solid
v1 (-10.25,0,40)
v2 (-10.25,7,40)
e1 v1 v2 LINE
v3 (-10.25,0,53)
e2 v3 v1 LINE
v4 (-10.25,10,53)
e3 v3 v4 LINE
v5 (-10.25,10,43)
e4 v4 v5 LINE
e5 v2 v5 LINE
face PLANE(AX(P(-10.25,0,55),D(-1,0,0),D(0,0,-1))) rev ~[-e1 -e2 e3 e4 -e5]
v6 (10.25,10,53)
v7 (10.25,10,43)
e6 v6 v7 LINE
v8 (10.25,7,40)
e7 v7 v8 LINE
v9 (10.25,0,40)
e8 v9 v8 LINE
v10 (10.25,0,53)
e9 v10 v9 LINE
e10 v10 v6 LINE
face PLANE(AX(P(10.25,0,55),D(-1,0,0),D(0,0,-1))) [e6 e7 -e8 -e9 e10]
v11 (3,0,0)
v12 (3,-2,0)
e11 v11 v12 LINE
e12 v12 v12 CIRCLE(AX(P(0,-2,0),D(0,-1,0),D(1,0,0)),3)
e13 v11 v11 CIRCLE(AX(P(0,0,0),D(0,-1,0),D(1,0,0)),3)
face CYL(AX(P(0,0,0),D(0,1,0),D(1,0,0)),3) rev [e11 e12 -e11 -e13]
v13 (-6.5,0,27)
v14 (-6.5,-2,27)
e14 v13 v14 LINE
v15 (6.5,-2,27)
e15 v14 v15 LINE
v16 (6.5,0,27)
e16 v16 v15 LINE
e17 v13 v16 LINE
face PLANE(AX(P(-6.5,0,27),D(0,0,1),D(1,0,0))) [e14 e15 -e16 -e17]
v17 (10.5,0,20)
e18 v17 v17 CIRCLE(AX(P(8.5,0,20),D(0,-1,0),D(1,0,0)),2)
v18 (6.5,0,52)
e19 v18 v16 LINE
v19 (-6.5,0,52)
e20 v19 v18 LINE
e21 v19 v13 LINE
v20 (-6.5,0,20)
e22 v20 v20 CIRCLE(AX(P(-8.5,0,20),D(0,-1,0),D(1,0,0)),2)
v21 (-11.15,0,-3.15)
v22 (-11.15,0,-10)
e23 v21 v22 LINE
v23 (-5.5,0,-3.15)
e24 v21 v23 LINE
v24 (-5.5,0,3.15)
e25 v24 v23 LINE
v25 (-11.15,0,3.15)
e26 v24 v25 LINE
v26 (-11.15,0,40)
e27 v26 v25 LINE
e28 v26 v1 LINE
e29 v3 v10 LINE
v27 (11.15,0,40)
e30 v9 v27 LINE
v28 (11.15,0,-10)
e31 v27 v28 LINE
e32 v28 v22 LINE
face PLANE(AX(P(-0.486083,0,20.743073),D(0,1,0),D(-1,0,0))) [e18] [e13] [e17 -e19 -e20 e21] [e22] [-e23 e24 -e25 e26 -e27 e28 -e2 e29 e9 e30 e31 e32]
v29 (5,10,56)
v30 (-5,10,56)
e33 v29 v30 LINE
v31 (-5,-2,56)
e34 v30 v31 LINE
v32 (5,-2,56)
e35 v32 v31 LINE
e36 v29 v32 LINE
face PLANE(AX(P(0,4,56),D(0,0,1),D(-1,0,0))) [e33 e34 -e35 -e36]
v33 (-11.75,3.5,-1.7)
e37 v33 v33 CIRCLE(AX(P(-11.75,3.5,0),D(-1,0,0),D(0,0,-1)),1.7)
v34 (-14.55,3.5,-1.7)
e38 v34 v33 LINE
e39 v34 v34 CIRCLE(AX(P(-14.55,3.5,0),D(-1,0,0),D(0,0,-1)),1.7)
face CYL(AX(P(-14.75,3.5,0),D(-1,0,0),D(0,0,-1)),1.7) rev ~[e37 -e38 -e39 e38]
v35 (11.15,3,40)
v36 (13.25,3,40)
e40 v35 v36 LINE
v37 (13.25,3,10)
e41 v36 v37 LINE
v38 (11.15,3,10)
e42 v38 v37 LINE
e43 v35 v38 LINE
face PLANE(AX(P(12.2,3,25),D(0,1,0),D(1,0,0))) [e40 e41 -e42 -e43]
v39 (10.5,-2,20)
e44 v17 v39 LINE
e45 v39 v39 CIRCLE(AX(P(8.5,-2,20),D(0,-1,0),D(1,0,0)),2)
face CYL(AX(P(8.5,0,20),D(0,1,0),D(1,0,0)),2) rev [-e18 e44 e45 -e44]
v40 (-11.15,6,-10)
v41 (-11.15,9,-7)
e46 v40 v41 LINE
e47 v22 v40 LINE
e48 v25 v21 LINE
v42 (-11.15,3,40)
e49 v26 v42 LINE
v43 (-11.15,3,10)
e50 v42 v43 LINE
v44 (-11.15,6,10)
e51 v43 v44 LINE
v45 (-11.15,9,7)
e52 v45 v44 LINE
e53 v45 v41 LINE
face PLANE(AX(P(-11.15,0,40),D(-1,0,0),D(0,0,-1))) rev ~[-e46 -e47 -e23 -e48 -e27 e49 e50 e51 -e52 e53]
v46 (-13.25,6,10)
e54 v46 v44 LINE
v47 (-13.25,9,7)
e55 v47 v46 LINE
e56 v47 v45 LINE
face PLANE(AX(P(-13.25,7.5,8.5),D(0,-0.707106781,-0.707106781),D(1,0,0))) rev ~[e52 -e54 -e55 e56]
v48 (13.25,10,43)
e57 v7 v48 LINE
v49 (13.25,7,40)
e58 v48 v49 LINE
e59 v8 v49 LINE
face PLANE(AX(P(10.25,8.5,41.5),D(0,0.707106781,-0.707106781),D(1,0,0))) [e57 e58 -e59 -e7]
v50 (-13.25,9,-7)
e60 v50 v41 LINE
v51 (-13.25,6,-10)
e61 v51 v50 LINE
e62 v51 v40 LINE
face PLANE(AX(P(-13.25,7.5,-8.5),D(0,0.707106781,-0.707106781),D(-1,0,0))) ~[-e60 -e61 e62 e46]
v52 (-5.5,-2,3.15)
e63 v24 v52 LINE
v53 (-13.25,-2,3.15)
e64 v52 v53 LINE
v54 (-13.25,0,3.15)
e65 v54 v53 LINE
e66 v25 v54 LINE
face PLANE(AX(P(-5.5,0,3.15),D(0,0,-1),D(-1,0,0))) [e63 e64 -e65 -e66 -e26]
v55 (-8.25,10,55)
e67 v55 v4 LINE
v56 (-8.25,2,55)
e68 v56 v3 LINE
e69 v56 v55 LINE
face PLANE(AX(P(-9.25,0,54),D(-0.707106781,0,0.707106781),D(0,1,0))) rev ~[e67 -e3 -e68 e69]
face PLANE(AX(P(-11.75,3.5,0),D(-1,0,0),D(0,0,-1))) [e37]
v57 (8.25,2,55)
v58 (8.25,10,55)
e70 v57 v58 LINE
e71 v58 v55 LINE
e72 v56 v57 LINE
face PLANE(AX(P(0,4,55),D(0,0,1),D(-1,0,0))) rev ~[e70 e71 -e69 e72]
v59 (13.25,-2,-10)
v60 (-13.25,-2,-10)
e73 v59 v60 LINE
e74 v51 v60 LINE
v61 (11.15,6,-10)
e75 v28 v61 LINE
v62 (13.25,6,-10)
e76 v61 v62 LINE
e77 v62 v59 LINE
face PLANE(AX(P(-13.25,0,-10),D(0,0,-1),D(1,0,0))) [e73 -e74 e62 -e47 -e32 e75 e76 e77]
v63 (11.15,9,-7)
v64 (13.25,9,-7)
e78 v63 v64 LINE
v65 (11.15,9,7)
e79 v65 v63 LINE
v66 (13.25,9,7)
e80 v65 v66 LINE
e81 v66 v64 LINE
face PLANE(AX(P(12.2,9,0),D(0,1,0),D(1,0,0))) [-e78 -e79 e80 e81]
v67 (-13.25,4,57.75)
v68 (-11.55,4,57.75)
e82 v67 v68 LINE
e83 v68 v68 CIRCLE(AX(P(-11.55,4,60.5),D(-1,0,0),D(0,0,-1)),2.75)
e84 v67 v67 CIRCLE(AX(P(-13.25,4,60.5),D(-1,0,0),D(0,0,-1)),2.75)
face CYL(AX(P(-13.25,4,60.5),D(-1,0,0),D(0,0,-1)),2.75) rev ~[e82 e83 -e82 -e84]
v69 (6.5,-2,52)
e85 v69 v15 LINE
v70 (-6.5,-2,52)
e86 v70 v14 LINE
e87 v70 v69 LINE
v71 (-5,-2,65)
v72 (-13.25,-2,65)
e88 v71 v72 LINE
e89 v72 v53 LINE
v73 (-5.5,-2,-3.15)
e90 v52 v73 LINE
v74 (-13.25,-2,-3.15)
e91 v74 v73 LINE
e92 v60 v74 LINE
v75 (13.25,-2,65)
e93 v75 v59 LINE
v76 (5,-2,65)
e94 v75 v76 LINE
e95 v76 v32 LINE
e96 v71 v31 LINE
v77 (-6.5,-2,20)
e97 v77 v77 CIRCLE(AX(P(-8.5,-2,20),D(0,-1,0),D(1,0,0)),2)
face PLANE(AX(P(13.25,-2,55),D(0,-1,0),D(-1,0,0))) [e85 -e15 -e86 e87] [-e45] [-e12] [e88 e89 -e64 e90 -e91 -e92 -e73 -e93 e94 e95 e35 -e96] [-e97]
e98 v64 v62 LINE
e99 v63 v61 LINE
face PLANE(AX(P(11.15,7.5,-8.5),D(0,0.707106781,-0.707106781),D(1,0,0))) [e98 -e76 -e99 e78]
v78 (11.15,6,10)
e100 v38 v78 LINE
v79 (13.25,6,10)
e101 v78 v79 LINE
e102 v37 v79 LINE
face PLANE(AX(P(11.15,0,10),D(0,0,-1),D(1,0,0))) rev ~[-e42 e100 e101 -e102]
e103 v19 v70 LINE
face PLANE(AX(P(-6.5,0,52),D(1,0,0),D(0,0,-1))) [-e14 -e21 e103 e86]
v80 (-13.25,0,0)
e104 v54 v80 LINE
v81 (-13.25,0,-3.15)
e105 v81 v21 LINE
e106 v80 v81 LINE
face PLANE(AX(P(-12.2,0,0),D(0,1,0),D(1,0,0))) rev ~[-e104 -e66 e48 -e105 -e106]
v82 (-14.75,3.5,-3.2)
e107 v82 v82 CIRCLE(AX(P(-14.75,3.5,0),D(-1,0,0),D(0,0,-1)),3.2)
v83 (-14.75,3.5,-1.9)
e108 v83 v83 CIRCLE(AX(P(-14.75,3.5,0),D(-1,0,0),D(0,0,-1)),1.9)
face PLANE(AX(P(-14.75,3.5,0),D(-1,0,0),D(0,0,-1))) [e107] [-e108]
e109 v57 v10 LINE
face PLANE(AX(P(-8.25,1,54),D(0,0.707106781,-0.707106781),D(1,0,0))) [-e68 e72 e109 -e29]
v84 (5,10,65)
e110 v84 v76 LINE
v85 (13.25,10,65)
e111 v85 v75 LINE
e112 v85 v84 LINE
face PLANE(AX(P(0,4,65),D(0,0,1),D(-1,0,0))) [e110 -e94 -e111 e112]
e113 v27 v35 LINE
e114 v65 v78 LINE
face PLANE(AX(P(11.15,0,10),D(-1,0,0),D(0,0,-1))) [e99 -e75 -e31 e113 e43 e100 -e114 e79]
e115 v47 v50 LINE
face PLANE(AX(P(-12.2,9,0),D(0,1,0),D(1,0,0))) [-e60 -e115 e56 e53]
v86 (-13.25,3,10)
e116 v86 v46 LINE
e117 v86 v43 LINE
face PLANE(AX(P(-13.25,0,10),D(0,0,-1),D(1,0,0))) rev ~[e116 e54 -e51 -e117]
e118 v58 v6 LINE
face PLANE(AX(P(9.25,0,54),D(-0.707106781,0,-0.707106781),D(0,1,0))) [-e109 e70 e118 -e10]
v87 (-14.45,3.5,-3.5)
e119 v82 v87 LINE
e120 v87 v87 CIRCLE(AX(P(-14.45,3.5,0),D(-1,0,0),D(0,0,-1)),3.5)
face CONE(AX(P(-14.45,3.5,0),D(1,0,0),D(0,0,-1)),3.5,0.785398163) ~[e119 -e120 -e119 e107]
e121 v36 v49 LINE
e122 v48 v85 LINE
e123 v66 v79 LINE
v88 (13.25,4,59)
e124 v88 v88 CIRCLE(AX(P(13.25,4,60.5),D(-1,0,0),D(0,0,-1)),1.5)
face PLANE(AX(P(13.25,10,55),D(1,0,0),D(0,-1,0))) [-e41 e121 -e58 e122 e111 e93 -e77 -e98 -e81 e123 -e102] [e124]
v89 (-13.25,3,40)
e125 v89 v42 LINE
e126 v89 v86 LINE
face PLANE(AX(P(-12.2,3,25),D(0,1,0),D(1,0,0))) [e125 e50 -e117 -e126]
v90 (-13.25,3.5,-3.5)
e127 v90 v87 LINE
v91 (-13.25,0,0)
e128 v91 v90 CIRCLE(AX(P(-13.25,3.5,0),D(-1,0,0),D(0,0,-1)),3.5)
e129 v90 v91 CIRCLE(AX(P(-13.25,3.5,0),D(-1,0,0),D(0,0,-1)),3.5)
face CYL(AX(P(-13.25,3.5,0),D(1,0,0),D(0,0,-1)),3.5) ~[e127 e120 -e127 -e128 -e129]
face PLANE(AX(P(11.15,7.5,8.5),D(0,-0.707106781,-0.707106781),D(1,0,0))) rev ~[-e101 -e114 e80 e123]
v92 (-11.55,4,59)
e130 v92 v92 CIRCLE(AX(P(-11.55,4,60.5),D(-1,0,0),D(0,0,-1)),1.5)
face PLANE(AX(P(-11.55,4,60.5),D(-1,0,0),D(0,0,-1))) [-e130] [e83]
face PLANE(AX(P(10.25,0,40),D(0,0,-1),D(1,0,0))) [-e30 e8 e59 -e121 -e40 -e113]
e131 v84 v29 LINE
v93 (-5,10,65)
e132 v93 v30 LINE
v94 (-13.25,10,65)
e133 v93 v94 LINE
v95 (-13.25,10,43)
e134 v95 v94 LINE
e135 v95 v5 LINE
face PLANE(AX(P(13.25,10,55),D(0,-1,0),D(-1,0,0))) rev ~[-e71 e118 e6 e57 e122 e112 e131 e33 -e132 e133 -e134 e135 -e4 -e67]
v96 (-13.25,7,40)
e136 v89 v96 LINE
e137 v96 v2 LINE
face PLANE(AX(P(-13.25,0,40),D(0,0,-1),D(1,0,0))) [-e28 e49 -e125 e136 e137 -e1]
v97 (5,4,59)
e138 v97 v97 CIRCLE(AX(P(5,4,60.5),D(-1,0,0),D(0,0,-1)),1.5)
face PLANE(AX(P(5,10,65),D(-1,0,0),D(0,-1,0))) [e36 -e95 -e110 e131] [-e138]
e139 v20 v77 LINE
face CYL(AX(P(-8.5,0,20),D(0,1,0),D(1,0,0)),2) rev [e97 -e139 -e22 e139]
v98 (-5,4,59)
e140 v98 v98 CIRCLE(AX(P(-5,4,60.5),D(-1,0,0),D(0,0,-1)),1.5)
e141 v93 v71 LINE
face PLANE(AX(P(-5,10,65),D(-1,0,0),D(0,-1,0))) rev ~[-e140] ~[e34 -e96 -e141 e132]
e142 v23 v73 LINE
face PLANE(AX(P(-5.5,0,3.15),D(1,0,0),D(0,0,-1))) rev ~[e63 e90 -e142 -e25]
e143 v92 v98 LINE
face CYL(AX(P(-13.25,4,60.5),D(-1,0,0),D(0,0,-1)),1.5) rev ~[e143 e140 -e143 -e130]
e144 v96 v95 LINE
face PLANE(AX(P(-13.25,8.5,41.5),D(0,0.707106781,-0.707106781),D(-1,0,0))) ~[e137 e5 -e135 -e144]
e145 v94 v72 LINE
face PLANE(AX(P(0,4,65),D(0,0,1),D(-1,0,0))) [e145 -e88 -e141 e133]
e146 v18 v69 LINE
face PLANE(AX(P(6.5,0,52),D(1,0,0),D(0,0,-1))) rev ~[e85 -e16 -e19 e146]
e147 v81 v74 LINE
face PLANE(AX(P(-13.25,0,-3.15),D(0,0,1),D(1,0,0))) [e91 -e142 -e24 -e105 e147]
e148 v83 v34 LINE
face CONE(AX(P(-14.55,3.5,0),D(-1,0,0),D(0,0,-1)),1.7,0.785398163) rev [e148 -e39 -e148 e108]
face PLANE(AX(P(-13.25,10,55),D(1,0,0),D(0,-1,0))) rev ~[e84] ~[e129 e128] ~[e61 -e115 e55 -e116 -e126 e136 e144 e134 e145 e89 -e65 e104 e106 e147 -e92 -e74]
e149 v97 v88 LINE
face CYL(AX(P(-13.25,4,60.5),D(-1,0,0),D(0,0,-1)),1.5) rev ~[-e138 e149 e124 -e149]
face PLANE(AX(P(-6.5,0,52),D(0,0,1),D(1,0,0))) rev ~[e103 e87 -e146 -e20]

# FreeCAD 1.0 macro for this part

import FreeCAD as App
import Part
import Sketcher
from FreeCAD import Vector


def edges_at(feature, points):
    """Names of the edges that pass closest to the given points."""
    edges = feature.Shape.Edges
    near = lambda p: min(range(len(edges)), key=lambda i: edges[i].distToShape(Part.Vertex(*p))[0])
    return sorted({f"Edge{near(p) + 1}" for p in points})


def add_polygon(sketch, points):
    """Adds a closed chain of lines whose ends are joined by coincident constraints."""
    first, n = sketch.GeometryCount, len(points)
    for a, b in zip(points, points[1:] + points[:1]):
        sketch.addGeometry(Part.LineSegment(App.Vector(*a, 0), App.Vector(*b, 0)), False)
    for i in range(n):
        sketch.addConstraint(Sketcher.Constraint("Coincident", first + i, 2, first + (i + 1) % n, 1))

doc = App.newDocument("Part")
body = doc.addObject("PartDesign::Body", "Body")

# Sketch on XZ plane
sketch1 = body.newObject("Sketcher::SketchObject", "Sketch")
sketch1.AttachmentSupport = (doc.getObject("XZ_Plane"), [""])
sketch1.MapMode = "FlatFace"
add_polygon(sketch1, [(13.2, 55), (-13.2, 55), (-13.2, 3.1), (-5.5, 3.1), (-5.5, -3.1), (-13.2, -3.1), (-13.2, -10), (13.2, -10)])  # lines 0-7
sketch1.addGeometry(Part.Circle(Vector(0, 0, 0), Vector(0, 0, 1), 3), False)  # 8
sketch1.addGeometry(Part.Circle(Vector(8.5, 20, 0), Vector(0, 0, 1), 2), False)  # 9
sketch1.addGeometry(Part.Circle(Vector(-8.5, 20, 0), Vector(0, 0, 1), 2), False)  # 10
sketch1.addConstraint([
    Sketcher.Constraint("Horizontal", 0),
    Sketcher.Constraint("Vertical", 1),
    Sketcher.Constraint("Horizontal", 2),
    Sketcher.Constraint("Vertical", 3),
    Sketcher.Constraint("Horizontal", 4),
    Sketcher.Constraint("Vertical", 5),
    Sketcher.Constraint("Horizontal", 6),
    Sketcher.Constraint("Vertical", 7),
    Sketcher.Constraint("Coincident", 8, 3, -1, 1),
    Sketcher.Constraint("Equal", 9, 10),
    Sketcher.Constraint("Symmetric", 9, 3, 10, 3, -2),
    Sketcher.Constraint("Symmetric", 1, 2, 4, 2, -1),
    Sketcher.Constraint("Diameter", 8, 6.0),
    Sketcher.Constraint("Diameter", 9, 4.0),
    Sketcher.Constraint("DistanceY", 7, 1, 7, 2, 65.0),
    Sketcher.Constraint("DistanceX", 0, 2, 0, 1, 26.5),
    Sketcher.Constraint("DistanceY", 3, 2, 3, 1, 6.3),
    Sketcher.Constraint("DistanceY", -1, 1, 9, 3, 20.0),
    Sketcher.Constraint("DistanceY", -1, 1, 0, 2, 55.0),
    Sketcher.Constraint("DistanceX", 10, 3, 9, 3, 17.0),
    Sketcher.Constraint("DistanceX", 10, 3, 2, 2, 3.0),
    Sketcher.Constraint("DistanceX", 2, 1, 2, 2, 7.75),
])
pad1 = body.newObject("PartDesign::Pad", "Pad")
pad1.Profile = sketch1
pad1.Length = 2

# Sketch on XZ plane
sketch2 = body.newObject("Sketcher::SketchObject", "Sketch001")
sketch2.AttachmentSupport = (doc.getObject("XZ_Plane"), [""])
sketch2.MapMode = "FlatFace"
add_polygon(sketch2, [(-13.2, -10), (-13.2, 10), (-11.2, 10), (-11.2, -10)])  # lines 0-3
add_polygon(sketch2, [(11.2, -10), (11.2, 10), (13.2, 10), (13.2, -10)])  # lines 4-7
sketch2.addConstraint([
    Sketcher.Constraint("Vertical", 0),
    Sketcher.Constraint("Horizontal", 1),
    Sketcher.Constraint("Vertical", 2),
    Sketcher.Constraint("Horizontal", 3),
    Sketcher.Constraint("Vertical", 4),
    Sketcher.Constraint("Horizontal", 5),
    Sketcher.Constraint("Vertical", 6),
    Sketcher.Constraint("Horizontal", 7),
    Sketcher.Constraint("Symmetric", 2, 2, 4, 2, -1, 1),
    Sketcher.Constraint("Symmetric", 0, 2, 6, 2, -1, 1),
    Sketcher.Constraint("Horizontal", 1, 2, 4, 2),
    Sketcher.Constraint("DistanceY", 0, 1, 0, 2, 20.0),
    Sketcher.Constraint("DistanceX", 1, 1, 1, 2, 2.1),
    Sketcher.Constraint("DistanceX", 1, 2, 4, 2, 22.3),
])
pad2 = body.newObject("PartDesign::Pad", "Pad001")
pad2.Profile = sketch2
pad2.Length = 9
pad2.Reversed = True
doc.recompute()

chamfer = body.newObject("PartDesign::Chamfer", "Chamfer")
chamfer.Base = (pad2, edges_at(pad2, [
    (-12.2, 9, -10),
    (12.2, 9, -10),
    (12.2, 9, 10),
    (-12.2, 9, 10),
]))
chamfer.Size = 3

# Sketch on XZ plane
sketch3 = body.newObject("Sketcher::SketchObject", "Sketch002")
sketch3.AttachmentSupport = (doc.getObject("XZ_Plane"), [""])
sketch3.MapMode = "FlatFace"
add_polygon(sketch3, [(-6, 27), (-6, 52), (6, 52), (6, 27)])  # lines 0-3
sketch3.addConstraint([
    Sketcher.Constraint("Vertical", 0),
    Sketcher.Constraint("Horizontal", 1),
    Sketcher.Constraint("Vertical", 2),
    Sketcher.Constraint("Horizontal", 3),
    Sketcher.Constraint("DistanceX", 1, 1, 1, 2, 13.0),
    Sketcher.Constraint("DistanceY", 0, 1, 0, 2, 25.0),
    Sketcher.Constraint("DistanceY", -1, 1, 0, 2, 52.0),
    Sketcher.Constraint("DistanceX", 0, 2, -1, 1, 6.5),
])
pocket1 = body.newObject("PartDesign::Pocket", "Pocket")
pocket1.Profile = sketch3
pocket1.Length = 2.5
pocket1.Reversed = True

# Sketch on YZ plane
sketch4 = body.newObject("Sketcher::SketchObject", "Sketch003")
sketch4.AttachmentSupport = (doc.getObject("YZ_Plane"), [""])
sketch4.MapMode = "FlatFace"
sketch4.AttachmentOffset = App.Placement(Vector(0, 0, -13.25), App.Rotation())
sketch4.addGeometry(Part.Circle(Vector(3.5, 0, 0), Vector(0, 0, 1), 3.5), False)
sketch4.addConstraint([
    Sketcher.Constraint("PointOnObject", 0, 3, -1),
    Sketcher.Constraint("Diameter", 0, 7.0),
    Sketcher.Constraint("DistanceX", -1, 1, 0, 3, 3.5),
])
pad3 = body.newObject("PartDesign::Pad", "Pad002")
pad3.Profile = sketch4
pad3.Length = 1.5
pad3.Reversed = True

# Sketch on YZ plane
sketch5 = body.newObject("Sketcher::SketchObject", "Sketch004")
sketch5.AttachmentSupport = (doc.getObject("YZ_Plane"), [""])
sketch5.MapMode = "FlatFace"
sketch5.AttachmentOffset = App.Placement(Vector(0, 0, -14.75), App.Rotation())
sketch5.addGeometry(Part.Circle(Vector(3.5, 0, 0), Vector(0, 0, 1), 1.7), False)
sketch5.addConstraint([
    Sketcher.Constraint("PointOnObject", 0, 3, -1),
    Sketcher.Constraint("Diameter", 0, 3.4),
    Sketcher.Constraint("DistanceX", -1, 1, 0, 3, 3.5),
])
pocket2 = body.newObject("PartDesign::Pocket", "Pocket001")
pocket2.Profile = sketch5
pocket2.Length = 3
pocket2.Reversed = True
doc.recompute()

chamfer2 = body.newObject("PartDesign::Chamfer", "Chamfer001")
chamfer2.Base = (pocket2, edges_at(pocket2, [(-14.75, 3.5, 1.7)]))
chamfer2.Size = 0.2
doc.recompute()

chamfer3 = body.newObject("PartDesign::Chamfer", "Chamfer002")
chamfer3.Base = (chamfer2, edges_at(chamfer2, [(-14.75, 3.5, 3.5)]))
chamfer3.Size = 0.3

# Sketch on XZ plane
sketch6 = body.newObject("Sketcher::SketchObject", "Sketch005")
sketch6.AttachmentSupport = (doc.getObject("XZ_Plane"), [""])
sketch6.MapMode = "FlatFace"
add_polygon(sketch6, [(-13.2, 40), (-13.2, 55), (-10.2, 55), (-10.2, 40)])  # lines 0-3
add_polygon(sketch6, [(10.2, 40), (10.2, 55), (13.2, 55), (13.2, 40)])  # lines 4-7
sketch6.addConstraint([
    Sketcher.Constraint("Vertical", 0),
    Sketcher.Constraint("Horizontal", 1),
    Sketcher.Constraint("Vertical", 2),
    Sketcher.Constraint("Horizontal", 3),
    Sketcher.Constraint("Vertical", 4),
    Sketcher.Constraint("Horizontal", 5),
    Sketcher.Constraint("Vertical", 6),
    Sketcher.Constraint("Horizontal", 7),
    Sketcher.Constraint("Symmetric", 1, 2, 4, 2, -2),
    Sketcher.Constraint("Symmetric", 3, 2, 6, 2, -2),
    Sketcher.Constraint("DistanceX", 1, 1, 1, 2, 3.0),
    Sketcher.Constraint("DistanceY", 0, 1, 0, 2, 15.0),
    Sketcher.Constraint("DistanceY", -1, 1, 0, 2, 55.0),
    Sketcher.Constraint("DistanceX", 1, 2, 4, 2, 20.5),
])
pad4 = body.newObject("PartDesign::Pad", "Pad003")
pad4.Profile = sketch6
pad4.Length = 10
pad4.Reversed = True
doc.recompute()

chamfer4 = body.newObject("PartDesign::Chamfer", "Chamfer003")
chamfer4.Base = (pad4, edges_at(pad4, [(11.75, 10, 40)]))
chamfer4.Size = 3
doc.recompute()

chamfer5 = body.newObject("PartDesign::Chamfer", "Chamfer004")
chamfer5.Base = (chamfer4, edges_at(chamfer4, [(-11.75, 10, 40)]))
chamfer5.Size = 3

# Sketch on XZ plane
sketch7 = body.newObject("Sketcher::SketchObject", "Sketch006")
sketch7.AttachmentSupport = (doc.getObject("XZ_Plane"), [""])
sketch7.MapMode = "FlatFace"
add_polygon(sketch7, [(-13.2, 10), (-13.2, 40), (-11.2, 40), (-11.2, 10)])  # lines 0-3
add_polygon(sketch7, [(11.2, 10), (11.2, 40), (13.2, 40), (13.2, 10)])  # lines 4-7
sketch7.addConstraint([
    Sketcher.Constraint("Vertical", 0),
    Sketcher.Constraint("Horizontal", 1),
    Sketcher.Constraint("Vertical", 2),
    Sketcher.Constraint("Horizontal", 3),
    Sketcher.Constraint("Vertical", 4),
    Sketcher.Constraint("Horizontal", 5),
    Sketcher.Constraint("Vertical", 6),
    Sketcher.Constraint("Horizontal", 7),
    Sketcher.Constraint("Symmetric", 1, 2, 4, 2, -2),
    Sketcher.Constraint("Symmetric", 3, 2, 6, 2, -2),
    Sketcher.Constraint("DistanceY", 0, 1, 0, 2, 30.0),
    Sketcher.Constraint("DistanceX", 1, 1, 1, 2, 2.1),
    Sketcher.Constraint("DistanceY", -1, 1, 0, 2, 40.0),
    Sketcher.Constraint("DistanceX", 1, 2, 4, 2, 22.3),
])
pad5 = body.newObject("PartDesign::Pad", "Pad004")
pad5.Profile = sketch7
pad5.Length = 3
pad5.Reversed = True

# Sketch on XY plane
sketch8 = body.newObject("Sketcher::SketchObject", "Sketch007")
sketch8.AttachmentSupport = (doc.getObject("XY_Plane"), [""])
sketch8.MapMode = "FlatFace"
sketch8.AttachmentOffset = App.Placement(Vector(0, 0, 55), App.Rotation())
add_polygon(sketch8, [(13, -2), (13, 10), (-13, 10), (-13, -2)])  # lines 0-3
sketch8.addConstraint([
    Sketcher.Constraint("Vertical", 0),
    Sketcher.Constraint("Horizontal", 1),
    Sketcher.Constraint("Vertical", 2),
    Sketcher.Constraint("Horizontal", 3),
    Sketcher.Constraint("DistanceY", 0, 1, 0, 2, 12.0),
    Sketcher.Constraint("DistanceX", 1, 2, 1, 1, 26.5),
    Sketcher.Constraint("DistanceY", -1, 1, 0, 2, 10.0),
    Sketcher.Constraint("DistanceX", -1, 1, 0, 2, 13.25),
])
pad6 = body.newObject("PartDesign::Pad", "Pad005")
pad6.Profile = sketch8
pad6.Length = 10
doc.recompute()

chamfer6 = body.newObject("PartDesign::Chamfer", "Chamfer005")
chamfer6.Base = (pad6, edges_at(pad6, [(-10.25, 5, 55)]))
chamfer6.Size = 2
doc.recompute()

chamfer7 = body.newObject("PartDesign::Chamfer", "Chamfer006")
chamfer7.Base = (chamfer6, edges_at(chamfer6, [(10.25, 5, 55)]))
chamfer7.Size = 2
doc.recompute()

chamfer8 = body.newObject("PartDesign::Chamfer", "Chamfer007")
chamfer8.Base = (chamfer7, edges_at(chamfer7, [(0, 0, 55)]))
chamfer8.Size = 2

# Sketch on XY plane
sketch9 = body.newObject("Sketcher::SketchObject", "Sketch008")
sketch9.AttachmentSupport = (doc.getObject("XY_Plane"), [""])
sketch9.MapMode = "FlatFace"
sketch9.AttachmentOffset = App.Placement(Vector(0, 0, 65), App.Rotation())
add_polygon(sketch9, [(5, -2), (5, 10), (-5, 10), (-5, -2)])  # lines 0-3
sketch9.addConstraint([
    Sketcher.Constraint("Vertical", 0),
    Sketcher.Constraint("Horizontal", 1),
    Sketcher.Constraint("Vertical", 2),
    Sketcher.Constraint("Horizontal", 3),
    Sketcher.Constraint("DistanceX", 1, 2, 1, 1, 10.0),
    Sketcher.Constraint("DistanceY", 0, 1, 0, 2, 12.0),
    Sketcher.Constraint("DistanceX", -1, 1, 0, 2, 5.0),
    Sketcher.Constraint("DistanceY", -1, 1, 0, 2, 10.0),
])
pocket3 = body.newObject("PartDesign::Pocket", "Pocket002")
pocket3.Profile = sketch9
pocket3.Length = 9

# Sketch on YZ plane
sketch10 = body.newObject("Sketcher::SketchObject", "Sketch009")
sketch10.AttachmentSupport = (doc.getObject("YZ_Plane"), [""])
sketch10.MapMode = "FlatFace"
sketch10.AttachmentOffset = App.Placement(Vector(0, 0, -13.25), App.Rotation())
sketch10.addGeometry(Part.Circle(Vector(4, 60.5, 0), Vector(0, 0, 1), 1.5), False)
sketch10.addConstraint([
    Sketcher.Constraint("Diameter", 0, 3.0),
    Sketcher.Constraint("DistanceX", -1, 1, 0, 3, 4.0),
    Sketcher.Constraint("DistanceY", -1, 1, 0, 3, 60.5),
])
pocket4 = body.newObject("PartDesign::Pocket", "Pocket003")
pocket4.Profile = sketch10
pocket4.Type = "ThroughAll"
pocket4.Reversed = True

# Sketch on YZ plane
sketch11 = body.newObject("Sketcher::SketchObject", "Sketch010")
sketch11.AttachmentSupport = (doc.getObject("YZ_Plane"), [""])
sketch11.MapMode = "FlatFace"
sketch11.AttachmentOffset = App.Placement(Vector(0, 0, -13.25), App.Rotation())
sketch11.addGeometry(Part.Circle(Vector(4, 60.5, 0), Vector(0, 0, 1), 2.8), False)
sketch11.addConstraint([
    Sketcher.Constraint("Diameter", 0, 5.5),
    Sketcher.Constraint("DistanceX", -1, 1, 0, 3, 4.0),
    Sketcher.Constraint("DistanceY", -1, 1, 0, 3, 60.5),
])
pocket5 = body.newObject("PartDesign::Pocket", "Pocket004")
pocket5.Profile = sketch11
pocket5.Length = 1.7
pocket5.Reversed = True

doc.recompute()
